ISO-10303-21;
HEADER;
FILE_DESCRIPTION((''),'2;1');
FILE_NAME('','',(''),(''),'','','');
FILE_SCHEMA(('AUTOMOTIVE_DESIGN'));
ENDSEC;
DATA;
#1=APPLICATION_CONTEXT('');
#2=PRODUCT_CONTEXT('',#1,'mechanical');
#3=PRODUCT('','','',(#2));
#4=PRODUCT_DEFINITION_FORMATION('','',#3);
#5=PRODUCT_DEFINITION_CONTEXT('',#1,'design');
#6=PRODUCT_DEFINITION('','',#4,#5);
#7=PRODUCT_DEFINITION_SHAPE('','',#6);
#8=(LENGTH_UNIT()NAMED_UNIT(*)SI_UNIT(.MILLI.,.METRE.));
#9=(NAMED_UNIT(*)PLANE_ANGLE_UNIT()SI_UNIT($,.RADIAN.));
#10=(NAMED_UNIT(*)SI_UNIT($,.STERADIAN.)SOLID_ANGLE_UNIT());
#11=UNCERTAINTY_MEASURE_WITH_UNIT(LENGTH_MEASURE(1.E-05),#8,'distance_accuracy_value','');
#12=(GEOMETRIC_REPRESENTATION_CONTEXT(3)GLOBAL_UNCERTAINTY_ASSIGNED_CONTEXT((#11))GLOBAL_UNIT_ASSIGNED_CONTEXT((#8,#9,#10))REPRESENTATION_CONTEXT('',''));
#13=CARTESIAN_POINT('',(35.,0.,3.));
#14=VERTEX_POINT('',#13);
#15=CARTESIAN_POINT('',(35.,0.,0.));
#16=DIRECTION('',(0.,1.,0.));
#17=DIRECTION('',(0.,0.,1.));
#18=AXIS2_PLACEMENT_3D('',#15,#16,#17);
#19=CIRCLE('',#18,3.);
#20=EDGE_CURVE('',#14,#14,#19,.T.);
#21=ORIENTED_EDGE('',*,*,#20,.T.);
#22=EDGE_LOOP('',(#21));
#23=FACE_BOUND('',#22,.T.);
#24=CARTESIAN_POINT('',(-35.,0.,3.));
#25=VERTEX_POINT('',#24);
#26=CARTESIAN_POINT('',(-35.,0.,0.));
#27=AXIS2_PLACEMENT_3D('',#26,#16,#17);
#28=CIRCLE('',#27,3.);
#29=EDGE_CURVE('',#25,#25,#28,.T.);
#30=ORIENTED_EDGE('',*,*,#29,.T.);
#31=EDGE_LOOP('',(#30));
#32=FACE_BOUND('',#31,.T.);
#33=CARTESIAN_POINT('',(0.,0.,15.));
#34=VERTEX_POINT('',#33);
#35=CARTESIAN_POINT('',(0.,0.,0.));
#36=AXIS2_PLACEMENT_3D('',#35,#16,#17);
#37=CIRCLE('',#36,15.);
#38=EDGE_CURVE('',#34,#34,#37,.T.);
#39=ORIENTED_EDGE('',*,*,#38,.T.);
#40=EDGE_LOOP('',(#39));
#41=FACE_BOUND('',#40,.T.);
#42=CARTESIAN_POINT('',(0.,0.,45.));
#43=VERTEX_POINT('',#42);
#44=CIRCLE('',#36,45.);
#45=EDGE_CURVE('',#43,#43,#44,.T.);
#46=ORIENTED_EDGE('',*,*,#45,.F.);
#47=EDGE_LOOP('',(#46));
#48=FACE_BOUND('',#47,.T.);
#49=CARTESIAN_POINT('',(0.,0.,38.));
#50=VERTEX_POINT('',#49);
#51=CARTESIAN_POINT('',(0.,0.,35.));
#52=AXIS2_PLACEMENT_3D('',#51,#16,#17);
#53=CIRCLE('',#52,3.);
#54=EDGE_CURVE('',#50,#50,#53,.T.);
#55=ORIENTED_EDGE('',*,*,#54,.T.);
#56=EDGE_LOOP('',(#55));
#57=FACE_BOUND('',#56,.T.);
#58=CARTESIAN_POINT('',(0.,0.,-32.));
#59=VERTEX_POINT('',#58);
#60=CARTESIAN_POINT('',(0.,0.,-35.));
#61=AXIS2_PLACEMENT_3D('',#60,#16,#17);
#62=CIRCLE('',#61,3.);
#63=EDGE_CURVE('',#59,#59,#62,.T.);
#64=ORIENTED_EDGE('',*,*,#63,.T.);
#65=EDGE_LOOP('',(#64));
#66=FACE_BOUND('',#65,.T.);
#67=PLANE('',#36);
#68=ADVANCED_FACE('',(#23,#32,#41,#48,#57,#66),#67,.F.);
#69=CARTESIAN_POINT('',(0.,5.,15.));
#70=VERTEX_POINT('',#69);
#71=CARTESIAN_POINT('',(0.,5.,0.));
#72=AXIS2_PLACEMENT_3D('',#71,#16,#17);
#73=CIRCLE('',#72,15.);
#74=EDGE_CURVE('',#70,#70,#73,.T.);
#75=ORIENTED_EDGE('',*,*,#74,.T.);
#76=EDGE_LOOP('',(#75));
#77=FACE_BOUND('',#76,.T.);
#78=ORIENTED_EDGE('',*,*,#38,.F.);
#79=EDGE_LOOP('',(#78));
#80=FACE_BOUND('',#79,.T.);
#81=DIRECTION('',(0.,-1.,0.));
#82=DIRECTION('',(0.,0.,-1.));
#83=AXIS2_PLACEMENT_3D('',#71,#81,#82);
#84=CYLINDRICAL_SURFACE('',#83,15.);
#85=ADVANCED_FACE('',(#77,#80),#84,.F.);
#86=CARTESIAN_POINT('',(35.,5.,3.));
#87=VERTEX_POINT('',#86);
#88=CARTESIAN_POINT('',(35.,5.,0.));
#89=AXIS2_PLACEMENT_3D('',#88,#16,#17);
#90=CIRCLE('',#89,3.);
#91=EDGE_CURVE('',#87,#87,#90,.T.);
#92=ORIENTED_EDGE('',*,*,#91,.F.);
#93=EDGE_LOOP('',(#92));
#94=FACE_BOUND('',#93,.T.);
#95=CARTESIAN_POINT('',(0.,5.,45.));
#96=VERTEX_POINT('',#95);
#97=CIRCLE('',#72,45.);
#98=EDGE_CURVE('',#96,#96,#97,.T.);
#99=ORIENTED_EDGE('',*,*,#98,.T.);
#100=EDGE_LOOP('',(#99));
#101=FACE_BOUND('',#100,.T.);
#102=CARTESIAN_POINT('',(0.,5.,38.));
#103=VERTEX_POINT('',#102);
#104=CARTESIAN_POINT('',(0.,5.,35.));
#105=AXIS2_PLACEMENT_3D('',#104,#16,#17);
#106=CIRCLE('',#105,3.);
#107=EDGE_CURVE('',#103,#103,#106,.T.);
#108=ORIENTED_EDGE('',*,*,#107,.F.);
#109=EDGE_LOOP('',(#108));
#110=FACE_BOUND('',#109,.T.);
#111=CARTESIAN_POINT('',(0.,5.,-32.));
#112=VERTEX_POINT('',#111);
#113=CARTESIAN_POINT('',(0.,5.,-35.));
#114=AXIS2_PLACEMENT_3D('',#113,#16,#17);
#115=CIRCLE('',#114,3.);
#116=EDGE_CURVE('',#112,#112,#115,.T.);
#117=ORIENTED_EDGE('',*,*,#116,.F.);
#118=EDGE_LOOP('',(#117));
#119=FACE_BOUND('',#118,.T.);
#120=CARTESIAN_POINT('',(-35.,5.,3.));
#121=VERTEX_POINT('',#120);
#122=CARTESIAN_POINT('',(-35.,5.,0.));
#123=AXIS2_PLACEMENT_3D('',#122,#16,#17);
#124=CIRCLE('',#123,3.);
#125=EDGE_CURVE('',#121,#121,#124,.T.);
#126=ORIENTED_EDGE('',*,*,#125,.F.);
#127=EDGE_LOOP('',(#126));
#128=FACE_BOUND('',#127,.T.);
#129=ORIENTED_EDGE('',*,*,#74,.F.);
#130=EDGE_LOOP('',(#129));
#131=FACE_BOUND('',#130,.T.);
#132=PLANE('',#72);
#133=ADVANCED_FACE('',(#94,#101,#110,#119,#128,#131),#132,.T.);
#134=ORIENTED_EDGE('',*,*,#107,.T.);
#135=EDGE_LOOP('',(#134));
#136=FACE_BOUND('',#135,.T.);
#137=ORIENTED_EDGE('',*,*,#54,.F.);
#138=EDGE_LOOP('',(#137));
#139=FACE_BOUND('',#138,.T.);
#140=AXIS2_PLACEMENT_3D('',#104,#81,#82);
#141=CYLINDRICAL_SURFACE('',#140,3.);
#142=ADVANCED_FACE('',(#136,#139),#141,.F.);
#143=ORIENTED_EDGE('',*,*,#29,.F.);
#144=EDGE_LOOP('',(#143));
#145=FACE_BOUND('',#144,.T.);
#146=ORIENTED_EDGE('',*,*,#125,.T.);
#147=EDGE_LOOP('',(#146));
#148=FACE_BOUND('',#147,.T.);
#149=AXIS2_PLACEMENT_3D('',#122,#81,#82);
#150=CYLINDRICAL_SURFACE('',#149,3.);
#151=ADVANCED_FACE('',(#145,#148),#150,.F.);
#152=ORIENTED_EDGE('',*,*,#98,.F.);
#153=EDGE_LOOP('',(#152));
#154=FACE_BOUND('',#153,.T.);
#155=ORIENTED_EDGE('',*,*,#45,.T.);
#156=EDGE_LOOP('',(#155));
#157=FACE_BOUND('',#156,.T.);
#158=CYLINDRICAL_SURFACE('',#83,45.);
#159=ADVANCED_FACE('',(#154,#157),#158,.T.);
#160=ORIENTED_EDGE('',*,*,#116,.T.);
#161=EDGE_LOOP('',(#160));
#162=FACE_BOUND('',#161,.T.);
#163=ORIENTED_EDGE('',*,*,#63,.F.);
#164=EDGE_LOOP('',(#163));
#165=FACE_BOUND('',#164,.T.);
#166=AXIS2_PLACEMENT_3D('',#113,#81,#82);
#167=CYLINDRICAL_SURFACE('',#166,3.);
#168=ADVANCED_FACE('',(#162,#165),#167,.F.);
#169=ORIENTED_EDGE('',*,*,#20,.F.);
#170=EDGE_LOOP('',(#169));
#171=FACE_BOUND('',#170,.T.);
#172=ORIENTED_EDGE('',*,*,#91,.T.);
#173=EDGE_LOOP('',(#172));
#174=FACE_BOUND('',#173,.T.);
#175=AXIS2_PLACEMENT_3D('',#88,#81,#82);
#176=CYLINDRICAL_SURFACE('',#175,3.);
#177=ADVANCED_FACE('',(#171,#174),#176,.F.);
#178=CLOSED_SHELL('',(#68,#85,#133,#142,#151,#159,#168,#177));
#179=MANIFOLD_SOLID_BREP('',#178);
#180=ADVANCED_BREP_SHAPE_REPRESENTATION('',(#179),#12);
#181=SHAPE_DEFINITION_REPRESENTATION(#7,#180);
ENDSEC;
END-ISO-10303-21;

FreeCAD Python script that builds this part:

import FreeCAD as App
import Part
import Sketcher

doc = App.newDocument("Part")
body = doc.addObject("PartDesign::Body", "Body")

# Sketch on XZ plane
sketch1 = doc.addObject("Sketcher::SketchObject", "Sketch")
body.addObject(sketch1)
sketch1.AttachmentSupport = (doc.XZ_Plane, [""])
sketch1.MapMode = "FlatFace"
sketch1.addGeometry(Part.Circle(App.Vector(0, 0, 0), App.Vector(0, 0, 1), 45), False)
sketch1.addGeometry(Part.Circle(App.Vector(0, 35, 0), App.Vector(0, 0, 1), 3), False)
sketch1.addGeometry(Part.Circle(App.Vector(-35, 0, 0), App.Vector(0, 0, 1), 3), False)
sketch1.addGeometry(Part.Circle(App.Vector(0, 0, 0), App.Vector(0, 0, 1), 15), False)
sketch1.addGeometry(Part.Circle(App.Vector(35, 0, 0), App.Vector(0, 0, 1), 3), False)
sketch1.addGeometry(Part.Circle(App.Vector(0, -35, 0), App.Vector(0, 0, 1), 3), False)
sketch1.addConstraint(Sketcher.Constraint("Coincident", 0, 3, -1, 1))
sketch1.addConstraint(Sketcher.Constraint("Coincident", 3, 3, -1, 1))
sketch1.addConstraint(Sketcher.Constraint("Equal", 1, 2))
sketch1.addConstraint(Sketcher.Constraint("Equal", 2, 4))
sketch1.addConstraint(Sketcher.Constraint("Equal", 4, 5))
sketch1.addConstraint(Sketcher.Constraint("Symmetric", 2, 3, 4, 3, -1, 1))
sketch1.addConstraint(Sketcher.Constraint("Symmetric", 1, 3, 5, 3, -1, 1))
sketch1.addConstraint(Sketcher.Constraint("PointOnObject", 1, 3, -2))
sketch1.addConstraint(Sketcher.Constraint("PointOnObject", 2, 3, -1))
sketch1.addConstraint(Sketcher.Constraint("Diameter", 0, 90.0))
sketch1.addConstraint(Sketcher.Constraint("Diameter", 1, 6.0))
sketch1.addConstraint(Sketcher.Constraint("Diameter", 3, 30.0))
sketch1.addConstraint(Sketcher.Constraint("DistanceY", -1, 1, 1, 3, 35.0))
sketch1.addConstraint(Sketcher.Constraint("DistanceX", 2, 3, -1, 1, 35.0))
pad1 = doc.addObject("PartDesign::Pad", "Pad")
body.addObject(pad1)
pad1.Profile = sketch1
pad1.Length = 5
pad1.Reversed = True

doc.recompute()
